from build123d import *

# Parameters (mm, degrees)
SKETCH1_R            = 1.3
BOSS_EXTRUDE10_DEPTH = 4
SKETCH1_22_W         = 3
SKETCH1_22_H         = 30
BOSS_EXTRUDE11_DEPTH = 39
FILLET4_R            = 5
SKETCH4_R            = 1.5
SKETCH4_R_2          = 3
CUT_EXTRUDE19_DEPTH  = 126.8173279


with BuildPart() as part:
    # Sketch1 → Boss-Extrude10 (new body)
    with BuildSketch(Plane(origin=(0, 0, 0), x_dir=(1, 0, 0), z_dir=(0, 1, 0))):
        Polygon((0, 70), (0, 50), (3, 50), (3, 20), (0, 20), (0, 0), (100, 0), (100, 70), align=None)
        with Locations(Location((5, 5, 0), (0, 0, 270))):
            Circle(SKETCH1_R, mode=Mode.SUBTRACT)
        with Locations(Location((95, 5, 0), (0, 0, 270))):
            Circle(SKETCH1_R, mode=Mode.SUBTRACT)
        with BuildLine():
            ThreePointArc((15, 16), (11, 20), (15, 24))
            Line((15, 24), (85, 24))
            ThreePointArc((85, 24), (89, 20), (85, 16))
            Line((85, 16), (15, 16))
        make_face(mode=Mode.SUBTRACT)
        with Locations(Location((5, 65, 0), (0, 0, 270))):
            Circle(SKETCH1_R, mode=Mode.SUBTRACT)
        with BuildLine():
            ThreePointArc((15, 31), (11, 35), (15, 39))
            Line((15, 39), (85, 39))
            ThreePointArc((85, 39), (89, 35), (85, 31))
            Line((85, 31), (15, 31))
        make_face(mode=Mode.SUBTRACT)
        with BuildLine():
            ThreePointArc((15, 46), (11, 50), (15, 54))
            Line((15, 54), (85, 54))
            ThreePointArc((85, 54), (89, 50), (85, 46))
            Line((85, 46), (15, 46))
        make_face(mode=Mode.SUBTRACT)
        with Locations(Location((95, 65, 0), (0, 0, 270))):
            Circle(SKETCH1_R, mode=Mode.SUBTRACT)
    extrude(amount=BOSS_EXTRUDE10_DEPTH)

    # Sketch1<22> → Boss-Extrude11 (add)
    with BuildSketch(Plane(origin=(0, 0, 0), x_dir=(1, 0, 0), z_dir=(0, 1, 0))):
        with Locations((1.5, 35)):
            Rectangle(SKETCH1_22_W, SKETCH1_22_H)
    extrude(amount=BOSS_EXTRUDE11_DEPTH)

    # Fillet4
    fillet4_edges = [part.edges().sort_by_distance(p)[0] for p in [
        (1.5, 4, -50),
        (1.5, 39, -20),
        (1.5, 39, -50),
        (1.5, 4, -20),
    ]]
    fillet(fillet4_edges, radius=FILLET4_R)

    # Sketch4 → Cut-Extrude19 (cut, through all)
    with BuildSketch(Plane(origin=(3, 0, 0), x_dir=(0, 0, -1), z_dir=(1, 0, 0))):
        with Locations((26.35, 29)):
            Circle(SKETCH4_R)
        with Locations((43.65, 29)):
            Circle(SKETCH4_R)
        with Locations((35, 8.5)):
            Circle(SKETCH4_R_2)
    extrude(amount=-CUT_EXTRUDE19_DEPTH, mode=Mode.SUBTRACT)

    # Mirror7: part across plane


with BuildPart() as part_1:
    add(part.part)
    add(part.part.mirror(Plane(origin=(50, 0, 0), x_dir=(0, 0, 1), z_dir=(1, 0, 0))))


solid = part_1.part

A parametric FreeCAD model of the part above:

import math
import FreeCAD as App
import Part
import Sketcher
from FreeCAD import Vector
Q = App.Units.Quantity


def edges_at(feature, points):
    """Names of the edges that pass closest to the given points."""
    edges = feature.Shape.Edges
    near = lambda p: min(range(len(edges)), key=lambda i: edges[i].distToShape(Part.Vertex(*p))[0])
    return sorted({f"Edge{near(p) + 1}" for p in points})

doc = App.newDocument("Part")
body = doc.addObject("PartDesign::Body", "Body")

sketch1 = doc.addObject("Sketcher::SketchObject", "Sketch")
body.addObject(sketch1)
sketch1.AttachmentSupport = (doc.XZ_Plane, [""])
sketch1.MapMode = "FlatFace"
sketch1.addGeometry([
    Part.LineSegment(Vector(0, -70, 0), Vector(0, -50, 0)),
    Part.LineSegment(Vector(0, -50, 0), Vector(3, -50, 0)),
    Part.LineSegment(Vector(3, -50, 0), Vector(3, -20, 0)),
    Part.LineSegment(Vector(3, -20, 0), Vector(0, -20, 0)),
    Part.LineSegment(Vector(0, -20, 0), Vector(0, 0, 0)),
    Part.LineSegment(Vector(0, 0, 0), Vector(100, 0, 0)),
    Part.LineSegment(Vector(100, 0, 0), Vector(100, -70, 0)),
    Part.LineSegment(Vector(100, -70, 0), Vector(0, -70, 0)),
    Part.Circle(Vector(5, -5, 0), Vector(0, 0, 1), 1.3),
    Part.Circle(Vector(95, -5, 0), Vector(0, 0, 1), 1.3),
    Part.LineSegment(Vector(85, -16, 0), Vector(15, -16, 0)),
    Part.ArcOfCircle(Part.Circle(Vector(15, -20, 0), Vector(0, 0, 1), 4), math.radians(90), math.radians(270)),
    Part.LineSegment(Vector(15, -24, 0), Vector(85, -24, 0)),
    Part.ArcOfCircle(Part.Circle(Vector(85, -20, 0), Vector(0, 0, 1), 4), math.radians(-90), math.radians(90)),
    Part.Circle(Vector(5, -65, 0), Vector(0, 0, 1), 1.3),
    Part.LineSegment(Vector(85, -31, 0), Vector(15, -31, 0)),
    Part.ArcOfCircle(Part.Circle(Vector(15, -35, 0), Vector(0, 0, 1), 4), math.radians(90), math.radians(270)),
    Part.LineSegment(Vector(15, -39, 0), Vector(85, -39, 0)),
    Part.ArcOfCircle(Part.Circle(Vector(85, -35, 0), Vector(0, 0, 1), 4), math.radians(-90), math.radians(90)),
    Part.LineSegment(Vector(85, -46, 0), Vector(15, -46, 0)),
    Part.ArcOfCircle(Part.Circle(Vector(15, -50, 0), Vector(0, 0, 1), 4), math.radians(90), math.radians(270)),
    Part.LineSegment(Vector(15, -54, 0), Vector(85, -54, 0)),
    Part.ArcOfCircle(Part.Circle(Vector(85, -50, 0), Vector(0, 0, 1), 4), math.radians(-90), math.radians(90)),
    Part.Circle(Vector(95, -65, 0), Vector(0, 0, 1), 1.3),
], False)
sketch1.addConstraint([
    Sketcher.Constraint("Coincident", 0, 2, 1, 1),
    Sketcher.Constraint("Coincident", 1, 2, 2, 1),
    Sketcher.Constraint("Coincident", 2, 2, 3, 1),
    Sketcher.Constraint("Coincident", 3, 2, 4, 1),
    Sketcher.Constraint("Coincident", 4, 2, 5, 1),
    Sketcher.Constraint("Coincident", 5, 2, 6, 1),
    Sketcher.Constraint("Coincident", 6, 2, 7, 1),
    Sketcher.Constraint("Coincident", 7, 2, 0, 1),
    Sketcher.Constraint("Tangent", 10, 2, 11, 1),
    Sketcher.Constraint("Tangent", 11, 2, 12, 1),
    Sketcher.Constraint("Tangent", 12, 2, 13, 1),
    Sketcher.Constraint("Tangent", 13, 2, 10, 1),
    Sketcher.Constraint("Tangent", 15, 2, 16, 1),
    Sketcher.Constraint("Tangent", 16, 2, 17, 1),
    Sketcher.Constraint("Tangent", 17, 2, 18, 1),
    Sketcher.Constraint("Tangent", 18, 2, 15, 1),
    Sketcher.Constraint("Tangent", 19, 2, 20, 1),
    Sketcher.Constraint("Tangent", 20, 2, 21, 1),
    Sketcher.Constraint("Tangent", 21, 2, 22, 1),
    Sketcher.Constraint("Tangent", 22, 2, 19, 1),
    Sketcher.Constraint("Vertical", 0),
    Sketcher.Constraint("Horizontal", 1),
    Sketcher.Constraint("Vertical", 2),
    Sketcher.Constraint("Horizontal", 3),
    Sketcher.Constraint("Vertical", 4),
    Sketcher.Constraint("Horizontal", 5),
    Sketcher.Constraint("Vertical", 6),
    Sketcher.Constraint("Horizontal", 7),
    Sketcher.Constraint("Horizontal", 10),
    Sketcher.Constraint("Horizontal", 12),
    Sketcher.Constraint("Horizontal", 15),
    Sketcher.Constraint("Horizontal", 17),
    Sketcher.Constraint("Horizontal", 19),
    Sketcher.Constraint("Horizontal", 21),
    Sketcher.Constraint("Coincident", 4, 2, -1, 1),
    Sketcher.Constraint("Equal", 8, 9),
    Sketcher.Constraint("Equal", 9, 14),
    Sketcher.Constraint("Equal", 13, 16),
    Sketcher.Constraint("Equal", 18, 20),
    Sketcher.Constraint("Equal", 14, 23),
    Sketcher.Constraint("PointOnObject", 0, 2, -2),
    Sketcher.Constraint("Horizontal", 8, 3, 9, 3),
    Sketcher.Constraint("Horizontal", 14, 3, 23, 3),
    Sketcher.Constraint("Horizontal", 22, 3, 0, 2),
    Sketcher.Constraint("Horizontal", 13, 3, 2, 2),
    Sketcher.Constraint("Vertical", 8, 3, 14, 3),
    Sketcher.Constraint("Vertical", 11, 3, 16, 3),
    Sketcher.Constraint("Vertical", 13, 3, 18, 3),
    Sketcher.Constraint("Vertical", 16, 3, 20, 3),
    Sketcher.Constraint("Vertical", 18, 3, 22, 3),
    Sketcher.Constraint("Vertical", 9, 3, 23, 3),
    Sketcher.Constraint("Equal", 0, 4),
    Sketcher.Constraint("Equal", 21, 6),
    Sketcher.Constraint("Radius", 11, Q("4 mm")),
    Sketcher.Constraint("Diameter", 8, Q("2.6 mm")),
    Sketcher.Constraint("DistanceX", 1, 1, 1, 2, Q("3 mm")),
    Sketcher.Constraint("DistanceX", 5, 1, 5, 2, Q("100 mm")),
    Sketcher.Constraint("DistanceX", 10, 2, 10, 1, Q("70 mm")),
    Sketcher.Constraint("DistanceY", 0, 1, 0, 2, Q("20 mm")),
    Sketcher.Constraint("DistanceX", -1, 1, 8, 3, Q("5 mm")),
    Sketcher.Constraint("DistanceY", 8, 3, -1, 1, Q("5 mm")),
    Sketcher.Constraint("DistanceX", -1, 1, 9, 3, Q("95 mm")),
    Sketcher.Constraint("DistanceX", -1, 1, 11, 3, Q("15 mm")),
    Sketcher.Constraint("DistanceY", 14, 3, -1, 1, Q("65 mm")),
    Sketcher.Constraint("DistanceY", 16, 3, -1, 1, Q("35 mm")),
])
pad1 = doc.addObject("PartDesign::Pad", "Pad")
body.addObject(pad1)
pad1.Profile = sketch1
pad1.Length = 4
pad1.Reversed = True

sketch2 = doc.addObject("Sketcher::SketchObject", "Sketch001")
body.addObject(sketch2)
sketch2.AttachmentSupport = (doc.XZ_Plane, [""])
sketch2.MapMode = "FlatFace"
sketch2.addGeometry([
    Part.LineSegment(Vector(0, -50, 0), Vector(0, -20, 0)),
    Part.LineSegment(Vector(0, -20, 0), Vector(3, -20, 0)),
    Part.LineSegment(Vector(3, -20, 0), Vector(3, -50, 0)),
    Part.LineSegment(Vector(3, -50, 0), Vector(0, -50, 0)),
], False)
sketch2.addConstraint([
    Sketcher.Constraint("Coincident", 0, 2, 1, 1),
    Sketcher.Constraint("Coincident", 1, 2, 2, 1),
    Sketcher.Constraint("Coincident", 2, 2, 3, 1),
    Sketcher.Constraint("Coincident", 3, 2, 0, 1),
    Sketcher.Constraint("Vertical", 0),
    Sketcher.Constraint("Horizontal", 1),
    Sketcher.Constraint("Vertical", 2),
    Sketcher.Constraint("Horizontal", 3),
    Sketcher.Constraint("PointOnObject", 0, 2, -2),
    Sketcher.Constraint("DistanceX", 1, 1, 1, 2, Q("3 mm")),
    Sketcher.Constraint("DistanceY", 0, 1, 0, 2, Q("30 mm")),
    Sketcher.Constraint("DistanceY", 0, 2, -1, 1, Q("20 mm")),
])
pad2 = doc.addObject("PartDesign::Pad", "Pad001")
body.addObject(pad2)
pad2.Profile = sketch2
pad2.Length = 39
pad2.Reversed = True
doc.recompute()

fillet = doc.addObject("PartDesign::Fillet", "Fillet")
body.addObject(fillet)
fillet.Base = (pad2, edges_at(pad2, [
    (1.5, 4, -50),
    (1.5, 39, -20),
    (1.5, 39, -50),
    (1.5, 4, -20),
]))
fillet.Radius = 5

sketch3 = doc.addObject("Sketcher::SketchObject", "Sketch002")
body.addObject(sketch3)
sketch3.AttachmentSupport = (doc.YZ_Plane, [""])
sketch3.MapMode = "FlatFace"
sketch3.AttachmentOffset = App.Placement(Vector(0, 0, 3), App.Rotation())
sketch3.addGeometry([
    Part.Circle(Vector(29, -26.4, 0), Vector(0, 0, 1), 1.5),
    Part.Circle(Vector(29, -43.6, 0), Vector(0, 0, 1), 1.5),
    Part.Circle(Vector(8.5, -35, 0), Vector(0, 0, 1), 3),
], False)
sketch3.addConstraint([
    Sketcher.Constraint("Equal", 0, 1),
    Sketcher.Constraint("Vertical", 0, 3, 1, 3),
    Sketcher.Constraint("Diameter", 0, Q("3 mm")),
    Sketcher.Constraint("Diameter", 2, Q("6 mm")),
    Sketcher.Constraint("DistanceX", -1, 1, 0, 3, Q("29 mm")),
    Sketcher.Constraint("DistanceY", 2, 3, -1, 1, Q("35 mm")),
    Sketcher.Constraint("DistanceX", -1, 1, 2, 3, Q("8.5 mm")),
    Sketcher.Constraint("DistanceY", 1, 3, 0, 3, Q("17.3 mm")),
    Sketcher.Constraint("DistanceY", 0, 3, -1, 1, Q("26.35 mm")),
])
pocket1 = doc.addObject("PartDesign::Pocket", "Pocket")
body.addObject(pocket1)
pocket1.Profile = sketch3
pocket1.Type = "ThroughAll"
body2 = doc.addObject("PartDesign::Body", "Body001")
doc.recompute()

body2.BaseFeature = body
doc.recompute()

mirroring = doc.addObject("Part::Mirroring", "Mirroring")
mirroring.Source = body
mirroring.Base = Vector(50, 0, 0)
mirroring.Normal = Vector(1, 0, 0)
body3 = doc.addObject("PartDesign::Body", "Body002")
body3.BaseFeature = mirroring
boolean = doc.addObject("PartDesign::Boolean", "Boolean")
body2.addObject(boolean)
boolean.Type = "Fuse"
boolean.addObjects([body3])
doc.recompute()
mirroring.Visibility = False

doc.recompute()
